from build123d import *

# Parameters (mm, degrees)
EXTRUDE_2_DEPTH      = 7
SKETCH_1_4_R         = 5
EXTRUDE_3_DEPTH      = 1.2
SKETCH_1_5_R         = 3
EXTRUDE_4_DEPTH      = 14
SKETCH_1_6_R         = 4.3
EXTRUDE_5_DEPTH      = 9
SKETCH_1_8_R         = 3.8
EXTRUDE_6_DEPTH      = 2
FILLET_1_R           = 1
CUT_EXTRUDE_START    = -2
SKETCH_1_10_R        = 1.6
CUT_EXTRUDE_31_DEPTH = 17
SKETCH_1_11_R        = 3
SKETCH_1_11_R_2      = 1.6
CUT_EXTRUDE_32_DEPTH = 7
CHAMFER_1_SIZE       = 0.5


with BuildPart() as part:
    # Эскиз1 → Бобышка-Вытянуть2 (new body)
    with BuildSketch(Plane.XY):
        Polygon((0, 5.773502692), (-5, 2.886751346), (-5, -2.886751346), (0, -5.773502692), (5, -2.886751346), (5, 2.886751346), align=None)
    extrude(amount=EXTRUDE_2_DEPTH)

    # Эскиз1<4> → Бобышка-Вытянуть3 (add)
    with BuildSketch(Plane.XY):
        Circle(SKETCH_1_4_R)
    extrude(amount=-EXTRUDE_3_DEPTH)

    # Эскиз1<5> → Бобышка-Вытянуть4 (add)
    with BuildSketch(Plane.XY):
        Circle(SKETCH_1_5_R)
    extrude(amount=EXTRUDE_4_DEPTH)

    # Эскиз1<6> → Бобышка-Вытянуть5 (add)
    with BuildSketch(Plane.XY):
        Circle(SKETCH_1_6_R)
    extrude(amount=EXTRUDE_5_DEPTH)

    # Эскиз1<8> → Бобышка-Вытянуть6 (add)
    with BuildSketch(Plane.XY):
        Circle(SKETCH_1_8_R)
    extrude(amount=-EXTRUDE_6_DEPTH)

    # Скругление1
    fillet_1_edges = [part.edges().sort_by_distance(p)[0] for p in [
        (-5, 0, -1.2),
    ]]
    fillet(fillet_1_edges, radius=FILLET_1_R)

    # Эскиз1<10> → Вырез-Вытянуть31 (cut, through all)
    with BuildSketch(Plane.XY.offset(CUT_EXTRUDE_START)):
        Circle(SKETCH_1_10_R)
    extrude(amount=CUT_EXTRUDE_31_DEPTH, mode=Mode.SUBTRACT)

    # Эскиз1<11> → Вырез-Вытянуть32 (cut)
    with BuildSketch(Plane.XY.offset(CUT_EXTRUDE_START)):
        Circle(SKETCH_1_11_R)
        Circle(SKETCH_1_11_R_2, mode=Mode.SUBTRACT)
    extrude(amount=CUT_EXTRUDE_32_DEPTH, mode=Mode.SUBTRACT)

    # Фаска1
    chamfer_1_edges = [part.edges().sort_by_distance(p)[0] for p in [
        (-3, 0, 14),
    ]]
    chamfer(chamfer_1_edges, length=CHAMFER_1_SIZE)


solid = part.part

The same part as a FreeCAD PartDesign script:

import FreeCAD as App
import Part
import Sketcher
from FreeCAD import Vector
Q = App.Units.Quantity


def edges_at(feature, points):
    """Names of the edges that pass closest to the given points."""
    edges = feature.Shape.Edges
    near = lambda p: min(range(len(edges)), key=lambda i: edges[i].distToShape(Part.Vertex(*p))[0])
    return sorted({f"Edge{near(p) + 1}" for p in points})

doc = App.newDocument("Part")
body = doc.addObject("PartDesign::Body", "Body")

sketch1 = body.newObject("Sketcher::SketchObject", "Sketch")
sketch1.AttachmentSupport = (doc.getObject("XY_Plane"), [""])
sketch1.MapMode = "FlatFace"
sketch1.addGeometry([
    Part.LineSegment(Vector(0, 6, 0), Vector(-5, 3, 0)),
    Part.LineSegment(Vector(-5, 3, 0), Vector(-5, -3, 0)),
    Part.LineSegment(Vector(-5, -3, 0), Vector(0, -6, 0)),
    Part.LineSegment(Vector(0, -6, 0), Vector(5, -3, 0)),
    Part.LineSegment(Vector(5, -3, 0), Vector(5, 3, 0)),
    Part.LineSegment(Vector(5, 3, 0), Vector(0, 6, 0)),
], False)
sketch1.addConstraint([
    Sketcher.Constraint("Coincident", 0, 2, 1, 1),
    Sketcher.Constraint("Coincident", 1, 2, 2, 1),
    Sketcher.Constraint("Coincident", 2, 2, 3, 1),
    Sketcher.Constraint("Coincident", 3, 2, 4, 1),
    Sketcher.Constraint("Coincident", 4, 2, 5, 1),
    Sketcher.Constraint("Coincident", 5, 2, 0, 1),
    Sketcher.Constraint("Vertical", 1),
    Sketcher.Constraint("Vertical", 4),
    Sketcher.Constraint("Symmetric", 0, 2, 3, 2, -1, 1),
    Sketcher.Constraint("Symmetric", 2, 2, 5, 2, -1, 1),
    Sketcher.Constraint("PointOnObject", 2, 2, -2),
    Sketcher.Constraint("Parallel", 2, 5),
    Sketcher.Constraint("Horizontal", 1, 2, 3, 2),
    Sketcher.Constraint("Angle", 0, Q("-150 deg")),
    Sketcher.Constraint("DistanceX", 0, 2, -1, 1, Q("5 mm")),
    Sketcher.Constraint("DistanceY", 1, 2, 1, 1, Q("5.773503 mm")),
])
pad1 = body.newObject("PartDesign::Pad", "Pad")
pad1.Profile = sketch1
pad1.Length = 7

sketch2 = body.newObject("Sketcher::SketchObject", "Sketch001")
sketch2.AttachmentSupport = (doc.getObject("XY_Plane"), [""])
sketch2.MapMode = "FlatFace"
sketch2.addGeometry(Part.Circle(Vector(0, 0, 0), Vector(0, 0, 1), 5), False)
sketch2.addConstraint([
    Sketcher.Constraint("Coincident", 0, 3, -1, 1),
    Sketcher.Constraint("Diameter", 0, Q("10 mm")),
])
pad2 = body.newObject("PartDesign::Pad", "Pad001")
pad2.Profile = sketch2
pad2.Length = 1.2
pad2.Reversed = True

sketch3 = body.newObject("Sketcher::SketchObject", "Sketch002")
sketch3.AttachmentSupport = (doc.getObject("XY_Plane"), [""])
sketch3.MapMode = "FlatFace"
sketch3.addGeometry(Part.Circle(Vector(0, 0, 0), Vector(0, 0, 1), 3), False)
sketch3.addConstraint([
    Sketcher.Constraint("Coincident", 0, 3, -1, 1),
    Sketcher.Constraint("Diameter", 0, Q("6 mm")),
])
pad3 = body.newObject("PartDesign::Pad", "Pad002")
pad3.Profile = sketch3
pad3.Length = 14

sketch4 = body.newObject("Sketcher::SketchObject", "Sketch003")
sketch4.AttachmentSupport = (doc.getObject("XY_Plane"), [""])
sketch4.MapMode = "FlatFace"
sketch4.addGeometry(Part.Circle(Vector(0, 0, 0), Vector(0, 0, 1), 4.3), False)
sketch4.addConstraint([
    Sketcher.Constraint("Coincident", 0, 3, -1, 1),
    Sketcher.Constraint("Diameter", 0, Q("8.6 mm")),
])
pad4 = body.newObject("PartDesign::Pad", "Pad003")
pad4.Profile = sketch4
pad4.Length = 9

sketch5 = body.newObject("Sketcher::SketchObject", "Sketch004")
sketch5.AttachmentSupport = (doc.getObject("XY_Plane"), [""])
sketch5.MapMode = "FlatFace"
sketch5.addGeometry(Part.Circle(Vector(0, 0, 0), Vector(0, 0, 1), 3.8), False)
sketch5.addConstraint([
    Sketcher.Constraint("Coincident", 0, 3, -1, 1),
    Sketcher.Constraint("Diameter", 0, Q("7.6 mm")),
])
pad5 = body.newObject("PartDesign::Pad", "Pad004")
pad5.Profile = sketch5
pad5.Length = 2
pad5.Reversed = True
doc.recompute()

fillet = body.newObject("PartDesign::Fillet", "Fillet")
fillet.Base = (pad5, edges_at(pad5, [(-5, 0, -1.2)]))
fillet.Radius = 1

sketch6 = body.newObject("Sketcher::SketchObject", "Sketch005")
sketch6.AttachmentSupport = (doc.getObject("XY_Plane"), [""])
sketch6.MapMode = "FlatFace"
sketch6.AttachmentOffset = App.Placement(Vector(0, 0, -2), App.Rotation())
sketch6.addGeometry(Part.Circle(Vector(0, 0, 0), Vector(0, 0, 1), 1.6), False)
sketch6.addConstraint([
    Sketcher.Constraint("Coincident", 0, 3, -1, 1),
    Sketcher.Constraint("Diameter", 0, Q("3.2 mm")),
])
pocket1 = body.newObject("PartDesign::Pocket", "Pocket")
pocket1.Profile = sketch6
pocket1.Type = "ThroughAll"
pocket1.Reversed = True

sketch7 = body.newObject("Sketcher::SketchObject", "Sketch006")
sketch7.AttachmentSupport = (doc.getObject("XY_Plane"), [""])
sketch7.MapMode = "FlatFace"
sketch7.AttachmentOffset = App.Placement(Vector(0, 0, -2), App.Rotation())
sketch7.addGeometry([
    Part.Circle(Vector(0, 0, 0), Vector(0, 0, 1), 3),
    Part.Circle(Vector(0, 0, 0), Vector(0, 0, 1), 1.6),
], False)
sketch7.addConstraint([
    Sketcher.Constraint("Coincident", 0, 3, -1, 1),
    Sketcher.Constraint("Coincident", 1, 3, -1, 1),
    Sketcher.Constraint("Diameter", 0, Q("6 mm")),
    Sketcher.Constraint("Diameter", 1, Q("3.2 mm")),
])
pocket2 = body.newObject("PartDesign::Pocket", "Pocket001")
pocket2.Profile = sketch7
pocket2.Length = 7
pocket2.Reversed = True
doc.recompute()

chamfer = body.newObject("PartDesign::Chamfer", "Chamfer")
chamfer.Base = (pocket2, edges_at(pocket2, [(-3, 0, 14)]))
chamfer.Size = 0.5

doc.recompute()
